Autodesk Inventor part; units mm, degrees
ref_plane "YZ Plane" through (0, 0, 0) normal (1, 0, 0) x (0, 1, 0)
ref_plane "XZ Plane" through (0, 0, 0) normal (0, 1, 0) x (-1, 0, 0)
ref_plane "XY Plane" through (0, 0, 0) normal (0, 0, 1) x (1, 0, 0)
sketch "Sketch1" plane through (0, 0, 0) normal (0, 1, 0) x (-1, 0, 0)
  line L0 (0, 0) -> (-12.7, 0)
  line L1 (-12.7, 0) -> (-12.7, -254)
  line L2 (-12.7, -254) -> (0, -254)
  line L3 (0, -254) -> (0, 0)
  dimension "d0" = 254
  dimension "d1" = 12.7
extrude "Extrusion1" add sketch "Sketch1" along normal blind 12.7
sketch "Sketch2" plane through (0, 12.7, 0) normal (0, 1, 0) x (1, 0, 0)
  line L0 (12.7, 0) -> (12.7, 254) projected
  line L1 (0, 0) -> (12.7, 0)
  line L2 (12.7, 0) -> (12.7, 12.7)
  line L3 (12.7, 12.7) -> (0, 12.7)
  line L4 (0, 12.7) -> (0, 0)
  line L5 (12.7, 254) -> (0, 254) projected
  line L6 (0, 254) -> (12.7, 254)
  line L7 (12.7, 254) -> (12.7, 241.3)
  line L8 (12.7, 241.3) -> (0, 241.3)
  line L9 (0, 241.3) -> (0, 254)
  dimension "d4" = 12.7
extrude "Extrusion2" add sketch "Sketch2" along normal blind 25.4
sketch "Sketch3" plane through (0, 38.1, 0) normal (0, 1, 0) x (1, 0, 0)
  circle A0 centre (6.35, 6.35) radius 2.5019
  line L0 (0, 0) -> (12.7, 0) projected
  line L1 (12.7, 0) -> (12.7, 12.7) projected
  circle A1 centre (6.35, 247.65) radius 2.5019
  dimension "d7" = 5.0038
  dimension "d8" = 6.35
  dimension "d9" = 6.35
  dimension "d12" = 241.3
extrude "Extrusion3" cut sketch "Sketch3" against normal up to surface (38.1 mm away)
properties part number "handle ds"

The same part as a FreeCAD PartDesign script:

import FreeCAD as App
import Part
import Sketcher
from FreeCAD import Vector
Q = App.Units.Quantity

doc = App.newDocument("Part")
body = doc.addObject("PartDesign::Body", "Body")

# Sketch on XZ plane
sketch1 = body.newObject("Sketcher::SketchObject", "Sketch")
sketch1.AttachmentSupport = (doc.getObject("XZ_Plane"), [""])
sketch1.MapMode = "FlatFace"
sketch1.addGeometry(Part.LineSegment(Vector(0, -254, 0), Vector(0, 0, 0)), False)
sketch1.addGeometry(Part.LineSegment(Vector(0, 0, 0), Vector(13, 0, 0)), False)
sketch1.addGeometry(Part.LineSegment(Vector(13, 0, 0), Vector(13, -254, 0)), False)
sketch1.addGeometry(Part.LineSegment(Vector(13, -254, 0), Vector(0, -254, 0)), False)
sketch1.addConstraint(Sketcher.Constraint("Coincident", 0, 2, 1, 1))
sketch1.addConstraint(Sketcher.Constraint("Coincident", 1, 2, 2, 1))
sketch1.addConstraint(Sketcher.Constraint("Coincident", 2, 2, 3, 1))
sketch1.addConstraint(Sketcher.Constraint("Coincident", 3, 2, 0, 1))
sketch1.addConstraint(Sketcher.Constraint("Vertical", 0))
sketch1.addConstraint(Sketcher.Constraint("Horizontal", 1))
sketch1.addConstraint(Sketcher.Constraint("Vertical", 2))
sketch1.addConstraint(Sketcher.Constraint("Horizontal", 3))
sketch1.addConstraint(Sketcher.Constraint("Coincident", 0, 2, -1, 1))
sketch1.addConstraint(Sketcher.Constraint("DistanceY", 0, 1, 0, 2, Q("10 in")))
sketch1.addConstraint(Sketcher.Constraint("DistanceX", 1, 1, 1, 2, Q("0.5 in")))
pad1 = body.newObject("PartDesign::Pad", "Pad")
pad1.Profile = sketch1
pad1.Length = Q("0.5 in")
pad1.Reversed = True

# Sketch on XZ plane
sketch2 = body.newObject("Sketcher::SketchObject", "Sketch001")
sketch2.AttachmentSupport = (doc.getObject("XZ_Plane"), [""])
sketch2.MapMode = "FlatFace"
sketch2.AttachmentOffset = App.Placement(Vector(0, 0, -0.5 * 25.4), App.Rotation())
sketch2.addGeometry(Part.LineSegment(Vector(0, 0, 0), Vector(13, 0, 0)), False)
sketch2.addGeometry(Part.LineSegment(Vector(13, 0, 0), Vector(13, -13, 0)), False)
sketch2.addGeometry(Part.LineSegment(Vector(13, -13, 0), Vector(0, -13, 0)), False)
sketch2.addGeometry(Part.LineSegment(Vector(0, -13, 0), Vector(0, 0, 0)), False)
sketch2.addGeometry(Part.LineSegment(Vector(0, -241, 0), Vector(13, -241, 0)), False)
sketch2.addGeometry(Part.LineSegment(Vector(13, -241, 0), Vector(13, -254, 0)), False)
sketch2.addGeometry(Part.LineSegment(Vector(13, -254, 0), Vector(0, -254, 0)), False)
sketch2.addGeometry(Part.LineSegment(Vector(0, -254, 0), Vector(0, -241, 0)), False)
sketch2.addConstraint(Sketcher.Constraint("Coincident", 0, 2, 1, 1))
sketch2.addConstraint(Sketcher.Constraint("Coincident", 1, 2, 2, 1))
sketch2.addConstraint(Sketcher.Constraint("Coincident", 2, 2, 3, 1))
sketch2.addConstraint(Sketcher.Constraint("Coincident", 3, 2, 0, 1))
sketch2.addConstraint(Sketcher.Constraint("Coincident", 4, 2, 5, 1))
sketch2.addConstraint(Sketcher.Constraint("Coincident", 5, 2, 6, 1))
sketch2.addConstraint(Sketcher.Constraint("Coincident", 6, 2, 7, 1))
sketch2.addConstraint(Sketcher.Constraint("Coincident", 7, 2, 4, 1))
sketch2.addConstraint(Sketcher.Constraint("Horizontal", 0))
sketch2.addConstraint(Sketcher.Constraint("Vertical", 1))
sketch2.addConstraint(Sketcher.Constraint("Horizontal", 2))
sketch2.addConstraint(Sketcher.Constraint("Vertical", 3))
sketch2.addConstraint(Sketcher.Constraint("Horizontal", 4))
sketch2.addConstraint(Sketcher.Constraint("Vertical", 5))
sketch2.addConstraint(Sketcher.Constraint("Horizontal", 6))
sketch2.addConstraint(Sketcher.Constraint("Vertical", 7))
sketch2.addConstraint(Sketcher.Constraint("Coincident", 3, 2, -1, 1))
sketch2.addConstraint(Sketcher.Constraint("PointOnObject", 6, 2, -2))
sketch2.addConstraint(Sketcher.Constraint("Vertical", 1, 2, 4, 2))
sketch2.addConstraint(Sketcher.Constraint("Equal", 6, 1))
sketch2.addConstraint(Sketcher.Constraint("Equal", 3, 5))
sketch2.addConstraint(Sketcher.Constraint("DistanceX", 0, 1, 0, 2, Q("0.5 in")))
sketch2.addConstraint(Sketcher.Constraint("DistanceY", 5, 2, -1, 1, Q("10 in")))
pad2 = body.newObject("PartDesign::Pad", "Pad001")
pad2.Profile = sketch2
pad2.Length = Q("1 in")
pad2.Reversed = True

# Sketch on XZ plane
sketch3 = body.newObject("Sketcher::SketchObject", "Sketch002")
sketch3.AttachmentSupport = (doc.getObject("XZ_Plane"), [""])
sketch3.MapMode = "FlatFace"
sketch3.AttachmentOffset = App.Placement(Vector(0, 0, -1.5 * 25.4), App.Rotation())
sketch3.addGeometry(Part.Circle(Vector(6.3, -6.3, 0), Vector(0, 0, 1), 2.5), False)
sketch3.addGeometry(Part.Circle(Vector(6.3, -247.7, 0), Vector(0, 0, 1), 2.5), False)
sketch3.addConstraint(Sketcher.Constraint("Equal", 0, 1))
sketch3.addConstraint(Sketcher.Constraint("Vertical", 0, 3, 1, 3))
sketch3.addConstraint(Sketcher.Constraint("Diameter", 0, Q("0.197 in")))
sketch3.addConstraint(Sketcher.Constraint("DistanceY", 1, 3, 0, 3, Q("9.5 in")))
sketch3.addConstraint(Sketcher.Constraint("DistanceX", -1, 1, 0, 3, Q("0.25 in")))
sketch3.addConstraint(Sketcher.Constraint("DistanceY", 0, 3, -1, 1, Q("0.25 in")))
pocket1 = body.newObject("PartDesign::Pocket", "Pocket")
pocket1.Profile = sketch3
pocket1.Length = Q("1.5 in")
pocket1.Reversed = True

doc.recompute()
